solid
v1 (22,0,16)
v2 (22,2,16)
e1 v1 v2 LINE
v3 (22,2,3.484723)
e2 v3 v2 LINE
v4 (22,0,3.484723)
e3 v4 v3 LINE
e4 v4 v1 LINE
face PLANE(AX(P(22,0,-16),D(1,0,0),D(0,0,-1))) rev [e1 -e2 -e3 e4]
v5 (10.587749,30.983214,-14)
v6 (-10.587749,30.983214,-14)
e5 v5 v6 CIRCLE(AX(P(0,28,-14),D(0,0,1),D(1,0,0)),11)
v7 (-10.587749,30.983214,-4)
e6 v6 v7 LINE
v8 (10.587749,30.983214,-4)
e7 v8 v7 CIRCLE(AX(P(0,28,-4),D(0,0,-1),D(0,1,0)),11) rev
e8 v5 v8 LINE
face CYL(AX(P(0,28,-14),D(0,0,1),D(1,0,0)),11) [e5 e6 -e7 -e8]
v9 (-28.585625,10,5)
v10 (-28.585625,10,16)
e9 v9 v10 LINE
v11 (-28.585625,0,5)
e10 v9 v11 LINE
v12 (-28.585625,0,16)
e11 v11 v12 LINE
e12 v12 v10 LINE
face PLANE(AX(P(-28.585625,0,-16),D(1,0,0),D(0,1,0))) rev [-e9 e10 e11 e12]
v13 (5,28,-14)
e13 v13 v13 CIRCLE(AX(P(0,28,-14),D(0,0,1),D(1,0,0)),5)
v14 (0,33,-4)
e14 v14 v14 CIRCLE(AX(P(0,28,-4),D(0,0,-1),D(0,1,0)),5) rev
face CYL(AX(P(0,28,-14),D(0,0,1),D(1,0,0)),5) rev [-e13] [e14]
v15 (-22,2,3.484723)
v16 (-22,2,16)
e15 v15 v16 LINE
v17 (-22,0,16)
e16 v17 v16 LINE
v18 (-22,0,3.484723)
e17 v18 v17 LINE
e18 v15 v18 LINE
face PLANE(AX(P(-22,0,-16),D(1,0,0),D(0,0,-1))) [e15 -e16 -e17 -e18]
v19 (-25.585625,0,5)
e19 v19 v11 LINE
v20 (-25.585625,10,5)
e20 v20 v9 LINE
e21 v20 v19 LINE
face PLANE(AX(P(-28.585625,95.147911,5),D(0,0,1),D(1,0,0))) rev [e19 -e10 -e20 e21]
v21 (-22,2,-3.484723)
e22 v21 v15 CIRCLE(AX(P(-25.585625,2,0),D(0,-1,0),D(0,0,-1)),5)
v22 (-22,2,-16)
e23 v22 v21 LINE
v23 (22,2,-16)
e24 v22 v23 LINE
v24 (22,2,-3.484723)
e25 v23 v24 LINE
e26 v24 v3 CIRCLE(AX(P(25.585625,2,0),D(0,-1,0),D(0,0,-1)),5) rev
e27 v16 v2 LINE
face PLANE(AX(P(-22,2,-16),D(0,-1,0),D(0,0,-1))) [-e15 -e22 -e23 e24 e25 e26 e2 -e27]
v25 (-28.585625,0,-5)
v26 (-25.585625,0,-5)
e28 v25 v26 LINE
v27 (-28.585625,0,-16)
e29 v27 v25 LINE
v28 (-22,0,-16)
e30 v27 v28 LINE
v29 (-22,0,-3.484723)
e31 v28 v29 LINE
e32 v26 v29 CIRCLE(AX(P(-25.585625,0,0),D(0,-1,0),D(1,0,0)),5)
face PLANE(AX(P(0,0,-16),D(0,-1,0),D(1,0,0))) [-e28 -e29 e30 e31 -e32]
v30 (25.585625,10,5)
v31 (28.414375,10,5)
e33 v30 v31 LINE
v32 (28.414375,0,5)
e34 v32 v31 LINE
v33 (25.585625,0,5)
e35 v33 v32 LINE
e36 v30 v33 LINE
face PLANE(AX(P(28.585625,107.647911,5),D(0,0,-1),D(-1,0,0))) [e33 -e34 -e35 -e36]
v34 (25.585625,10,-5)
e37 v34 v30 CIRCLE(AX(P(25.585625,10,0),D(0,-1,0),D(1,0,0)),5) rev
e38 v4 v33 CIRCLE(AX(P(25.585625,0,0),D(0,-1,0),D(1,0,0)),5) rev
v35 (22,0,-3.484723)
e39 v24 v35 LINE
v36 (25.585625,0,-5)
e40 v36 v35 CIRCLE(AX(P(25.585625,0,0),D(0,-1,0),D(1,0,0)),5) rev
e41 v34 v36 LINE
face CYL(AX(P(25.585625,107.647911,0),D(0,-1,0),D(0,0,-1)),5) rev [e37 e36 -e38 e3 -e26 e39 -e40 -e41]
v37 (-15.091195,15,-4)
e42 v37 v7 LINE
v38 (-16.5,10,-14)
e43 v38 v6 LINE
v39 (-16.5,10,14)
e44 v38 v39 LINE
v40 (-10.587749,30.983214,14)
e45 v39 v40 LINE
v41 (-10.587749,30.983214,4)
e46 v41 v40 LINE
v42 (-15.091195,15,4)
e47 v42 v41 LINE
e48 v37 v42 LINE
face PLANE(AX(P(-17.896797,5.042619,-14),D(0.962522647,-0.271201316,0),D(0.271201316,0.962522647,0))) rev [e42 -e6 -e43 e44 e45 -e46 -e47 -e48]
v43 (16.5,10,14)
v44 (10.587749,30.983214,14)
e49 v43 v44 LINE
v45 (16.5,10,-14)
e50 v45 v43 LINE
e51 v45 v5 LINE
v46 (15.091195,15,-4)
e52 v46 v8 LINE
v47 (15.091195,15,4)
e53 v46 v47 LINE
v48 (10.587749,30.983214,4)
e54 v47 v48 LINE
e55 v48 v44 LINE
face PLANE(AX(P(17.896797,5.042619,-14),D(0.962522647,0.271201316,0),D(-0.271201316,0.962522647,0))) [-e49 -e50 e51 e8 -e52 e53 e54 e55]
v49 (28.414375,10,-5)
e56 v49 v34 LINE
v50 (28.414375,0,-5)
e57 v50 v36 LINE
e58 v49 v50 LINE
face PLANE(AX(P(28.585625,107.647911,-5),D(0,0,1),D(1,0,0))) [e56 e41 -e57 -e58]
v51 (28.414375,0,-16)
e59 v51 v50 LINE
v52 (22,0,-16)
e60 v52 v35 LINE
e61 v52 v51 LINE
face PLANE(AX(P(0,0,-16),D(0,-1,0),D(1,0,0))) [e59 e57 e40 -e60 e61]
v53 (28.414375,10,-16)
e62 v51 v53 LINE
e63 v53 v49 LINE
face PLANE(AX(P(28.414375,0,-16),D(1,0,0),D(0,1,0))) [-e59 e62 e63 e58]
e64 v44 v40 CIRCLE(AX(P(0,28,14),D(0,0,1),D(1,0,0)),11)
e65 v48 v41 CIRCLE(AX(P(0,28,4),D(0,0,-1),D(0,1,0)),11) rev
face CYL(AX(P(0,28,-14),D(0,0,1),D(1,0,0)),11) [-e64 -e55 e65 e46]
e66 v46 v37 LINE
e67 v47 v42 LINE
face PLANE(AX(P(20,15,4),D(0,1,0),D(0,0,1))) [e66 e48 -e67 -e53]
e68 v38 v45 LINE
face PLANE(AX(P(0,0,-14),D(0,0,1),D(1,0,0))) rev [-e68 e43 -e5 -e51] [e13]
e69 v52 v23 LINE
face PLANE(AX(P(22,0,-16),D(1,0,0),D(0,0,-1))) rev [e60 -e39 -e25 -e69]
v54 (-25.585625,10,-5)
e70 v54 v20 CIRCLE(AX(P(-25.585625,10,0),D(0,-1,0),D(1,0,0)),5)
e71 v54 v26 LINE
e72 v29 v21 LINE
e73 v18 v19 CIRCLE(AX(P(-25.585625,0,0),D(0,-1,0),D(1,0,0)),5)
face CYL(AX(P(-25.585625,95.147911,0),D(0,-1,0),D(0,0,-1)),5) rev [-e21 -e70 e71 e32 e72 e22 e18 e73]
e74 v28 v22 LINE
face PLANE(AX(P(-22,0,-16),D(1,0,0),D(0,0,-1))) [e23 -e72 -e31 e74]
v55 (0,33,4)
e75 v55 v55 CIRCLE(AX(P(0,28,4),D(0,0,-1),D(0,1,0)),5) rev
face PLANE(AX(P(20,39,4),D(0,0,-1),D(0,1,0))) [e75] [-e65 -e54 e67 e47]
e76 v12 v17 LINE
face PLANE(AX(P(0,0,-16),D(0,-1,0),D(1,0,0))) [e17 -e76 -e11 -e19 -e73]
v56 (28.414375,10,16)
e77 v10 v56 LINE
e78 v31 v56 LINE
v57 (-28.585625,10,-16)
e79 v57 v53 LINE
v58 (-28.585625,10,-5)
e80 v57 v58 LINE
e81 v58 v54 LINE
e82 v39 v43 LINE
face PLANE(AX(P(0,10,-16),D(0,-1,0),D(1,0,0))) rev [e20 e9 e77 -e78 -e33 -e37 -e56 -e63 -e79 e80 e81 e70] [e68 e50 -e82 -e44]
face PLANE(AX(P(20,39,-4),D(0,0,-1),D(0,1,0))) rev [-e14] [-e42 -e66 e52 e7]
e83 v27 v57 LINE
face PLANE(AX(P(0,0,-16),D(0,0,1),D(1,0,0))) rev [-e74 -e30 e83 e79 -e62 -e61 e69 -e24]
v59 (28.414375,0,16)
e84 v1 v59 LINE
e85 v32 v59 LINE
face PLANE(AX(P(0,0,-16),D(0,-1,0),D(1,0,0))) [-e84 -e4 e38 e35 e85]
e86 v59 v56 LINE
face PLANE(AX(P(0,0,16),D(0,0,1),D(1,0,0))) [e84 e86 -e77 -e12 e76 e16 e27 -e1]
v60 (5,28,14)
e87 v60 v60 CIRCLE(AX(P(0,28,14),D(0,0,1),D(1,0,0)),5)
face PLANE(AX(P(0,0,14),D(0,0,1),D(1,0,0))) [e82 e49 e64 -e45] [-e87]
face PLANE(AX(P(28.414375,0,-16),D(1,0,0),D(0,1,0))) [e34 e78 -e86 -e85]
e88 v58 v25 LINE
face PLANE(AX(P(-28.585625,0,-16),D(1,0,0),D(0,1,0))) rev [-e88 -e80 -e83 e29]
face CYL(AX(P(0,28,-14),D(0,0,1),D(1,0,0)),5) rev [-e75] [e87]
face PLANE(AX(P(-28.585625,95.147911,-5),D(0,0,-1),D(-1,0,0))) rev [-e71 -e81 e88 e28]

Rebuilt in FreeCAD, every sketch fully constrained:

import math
import FreeCAD as App
import Part
import Sketcher

V = App.Vector


def add_polygon(sketch, points):
    """Adds a closed chain of lines whose ends are joined by coincident constraints."""
    first, n = sketch.GeometryCount, len(points)
    for a, b in zip(points, points[1:] + points[:1]):
        sketch.addGeometry(Part.LineSegment(App.Vector(*a, 0), App.Vector(*b, 0)), False)
    for i in range(n):
        sketch.addConstraint(Sketcher.Constraint("Coincident", first + i, 2, first + (i + 1) % n, 1))

doc = App.newDocument("Part")
body = doc.addObject("PartDesign::Body", "Body")

# Sketch on XY plane
sketch1 = doc.addObject("Sketcher::SketchObject", "Sketch")
body.addObject(sketch1)
sketch1.AttachmentSupport = (doc.XY_Plane, [""])
sketch1.MapMode = "FlatFace"
sketch1.AttachmentOffset = App.Placement(V(0, 0, 16), App.Rotation())
add_polygon(sketch1, [(-29, 10), (-29, 0), (28, 0), (28, 10)])  # lines 0-3
sketch1.addConstraint([
    Sketcher.Constraint("Vertical", 0),
    Sketcher.Constraint("Horizontal", 1),
    Sketcher.Constraint("Vertical", 2),
    Sketcher.Constraint("Horizontal", 3),
    Sketcher.Constraint("PointOnObject", 0, 2, -1),
    Sketcher.Constraint("DistanceX", 1, 1, 1, 2, 57.0),
    Sketcher.Constraint("DistanceY", 0, 2, 0, 1, 10.0),
    Sketcher.Constraint("DistanceX", 0, 2, -1, 1, 28.585625),
])
pad1 = doc.addObject("PartDesign::Pad", "Pad")
body.addObject(pad1)
pad1.Profile = sketch1
pad1.Length = 32
pad1.Reversed = True

# Sketch on XY plane
sketch2 = doc.addObject("Sketcher::SketchObject", "Sketch001")
body.addObject(sketch2)
sketch2.AttachmentSupport = (doc.XY_Plane, [""])
sketch2.MapMode = "FlatFace"
sketch2.AttachmentOffset = App.Placement(V(0, 0, 14), App.Rotation())
sketch2.addGeometry([
    Part.LineSegment(V(-11, 31, 0), V(-16, 10, 0)),  # 0
    Part.LineSegment(V(-16, 10, 0), V(-29, 10, 0)),  # 1
    Part.LineSegment(V(-29, 10, 0), V(-29, 0, 0)),  # 2
    Part.LineSegment(V(-29, 0, 0), V(28, 0, 0)),  # 3
    Part.LineSegment(V(28, 0, 0), V(28, 10, 0)),  # 4
    Part.LineSegment(V(28, 10, 0), V(16, 10, 0)),  # 5
    Part.LineSegment(V(16, 10, 0), V(11, 31, 0)),  # 6
    Part.ArcOfCircle(Part.Circle(V(0, 28, 0), V(0, 0, 1), 11), math.radians(16), math.radians(164)),  # 7
    Part.Circle(V(0, 28, 0), V(0, 0, 1), 5),  # 8
], False)
sketch2.addConstraint([
    Sketcher.Constraint("Coincident", 0, 2, 1, 1),
    Sketcher.Constraint("Coincident", 1, 2, 2, 1),
    Sketcher.Constraint("Coincident", 2, 2, 3, 1),
    Sketcher.Constraint("Coincident", 3, 2, 4, 1),
    Sketcher.Constraint("Coincident", 4, 2, 5, 1),
    Sketcher.Constraint("Coincident", 5, 2, 6, 1),
    Sketcher.Constraint("Tangent", 6, 2, 7, 1),
    Sketcher.Constraint("Tangent", 7, 2, 0, 1),
    Sketcher.Constraint("Horizontal", 1),
    Sketcher.Constraint("Vertical", 2),
    Sketcher.Constraint("Horizontal", 3),
    Sketcher.Constraint("Vertical", 4),
    Sketcher.Constraint("Horizontal", 5),
    Sketcher.Constraint("Coincident", 8, 3, 7, 3),
    Sketcher.Constraint("Symmetric", 0, 2, 5, 2, -2),
    Sketcher.Constraint("PointOnObject", 7, 3, -2),
    Sketcher.Constraint("PointOnObject", 2, 2, -1),
    Sketcher.Constraint("Diameter", 8, 10.0),
    Sketcher.Constraint("Radius", 7, 11.0),
    Sketcher.Constraint("DistanceX", 3, 1, 3, 2, 57.0),
    Sketcher.Constraint("DistanceY", 2, 2, 2, 1, 10.0),
    Sketcher.Constraint("DistanceY", -1, 1, 7, 3, 28.0),
    Sketcher.Constraint("DistanceX", 0, 2, 5, 2, 33.0),
    Sketcher.Constraint("DistanceX", 1, 2, 1, 1, 12.085625),
])
pad2 = doc.addObject("PartDesign::Pad", "Pad001")
body.addObject(pad2)
pad2.Profile = sketch2
pad2.Length = 28
pad2.Reversed = True

# Sketch on XY plane
sketch3 = doc.addObject("Sketcher::SketchObject", "Sketch002")
body.addObject(sketch3)
sketch3.AttachmentSupport = (doc.XY_Plane, [""])
sketch3.MapMode = "FlatFace"
sketch3.AttachmentOffset = App.Placement(V(0, 0, 14), App.Rotation())
sketch3.addGeometry([
    Part.LineSegment(V(-11, 31, 0), V(-16, 10, 0)),  # 0
    Part.LineSegment(V(-16, 10, 0), V(-29, 10, 0)),  # 1
    Part.LineSegment(V(-29, 10, 0), V(-29, 0, 0)),  # 2
    Part.LineSegment(V(-29, 0, 0), V(28, 0, 0)),  # 3
    Part.LineSegment(V(28, 0, 0), V(28, 10, 0)),  # 4
    Part.LineSegment(V(28, 10, 0), V(16, 10, 0)),  # 5
    Part.LineSegment(V(16, 10, 0), V(11, 31, 0)),  # 6
    Part.ArcOfCircle(Part.Circle(V(0, 28, 0), V(0, 0, 1), 11), math.radians(16), math.radians(164)),  # 7
    Part.Circle(V(0, 28, 0), V(0, 0, 1), 5),  # 8
], False)
sketch3.addConstraint([
    Sketcher.Constraint("Coincident", 0, 2, 1, 1),
    Sketcher.Constraint("Coincident", 1, 2, 2, 1),
    Sketcher.Constraint("Coincident", 2, 2, 3, 1),
    Sketcher.Constraint("Coincident", 3, 2, 4, 1),
    Sketcher.Constraint("Coincident", 4, 2, 5, 1),
    Sketcher.Constraint("Coincident", 5, 2, 6, 1),
    Sketcher.Constraint("Tangent", 6, 2, 7, 1),
    Sketcher.Constraint("Tangent", 7, 2, 0, 1),
    Sketcher.Constraint("Horizontal", 1),
    Sketcher.Constraint("Vertical", 2),
    Sketcher.Constraint("Horizontal", 3),
    Sketcher.Constraint("Vertical", 4),
    Sketcher.Constraint("Horizontal", 5),
    Sketcher.Constraint("Coincident", 8, 3, 7, 3),
    Sketcher.Constraint("Symmetric", 0, 2, 5, 2, -2),
    Sketcher.Constraint("PointOnObject", 7, 3, -2),
    Sketcher.Constraint("PointOnObject", 2, 2, -1),
    Sketcher.Constraint("Diameter", 8, 10.0),
    Sketcher.Constraint("Radius", 7, 11.0),
    Sketcher.Constraint("DistanceX", 3, 1, 3, 2, 57.0),
    Sketcher.Constraint("DistanceY", 2, 2, 2, 1, 10.0),
    Sketcher.Constraint("DistanceY", -1, 1, 7, 3, 28.0),
    Sketcher.Constraint("DistanceX", 0, 2, 5, 2, 33.0),
    Sketcher.Constraint("DistanceX", 1, 2, 1, 1, 12.085625),
])
pad3 = doc.addObject("PartDesign::Pad", "Pad002")
body.addObject(pad3)
pad3.Profile = sketch3
pad3.Length = 28
pad3.Reversed = True

# Sketch on XY plane
sketch4 = doc.addObject("Sketcher::SketchObject", "Sketch003")
body.addObject(sketch4)
sketch4.AttachmentSupport = (doc.XY_Plane, [""])
sketch4.MapMode = "FlatFace"
sketch4.AttachmentOffset = App.Placement(V(0, 0, 16), App.Rotation())
add_polygon(sketch4, [(-22, 2), (-22, 0), (22, 0), (22, 2)])  # lines 0-3
sketch4.addConstraint([
    Sketcher.Constraint("Vertical", 0),
    Sketcher.Constraint("Horizontal", 1),
    Sketcher.Constraint("Vertical", 2),
    Sketcher.Constraint("Horizontal", 3),
    Sketcher.Constraint("Symmetric", 0, 2, 1, 2, -1, 1),
    Sketcher.Constraint("DistanceX", 1, 1, 1, 2, 44.0),
    Sketcher.Constraint("DistanceY", 0, 2, 0, 1, 2.0),
])
pocket1 = doc.addObject("PartDesign::Pocket", "Pocket")
body.addObject(pocket1)
pocket1.Profile = sketch4
pocket1.Type = "ThroughAll"

# Sketch on XZ plane
sketch5 = doc.addObject("Sketcher::SketchObject", "Sketch004")
body.addObject(sketch5)
sketch5.AttachmentSupport = (doc.XZ_Plane, [""])
sketch5.MapMode = "FlatFace"
sketch5.addGeometry([
    Part.ArcOfCircle(Part.Circle(V(-26, 0, 0), V(0, 0, 1), 5), math.radians(-90), math.radians(90)),
    Part.LineSegment(V(-26, -5, 0), V(-423, -5, 0)),
    Part.LineSegment(V(-423, -5, 0), V(-423, 5, 0)),
    Part.LineSegment(V(-423, 5, 0), V(-26, 5, 0)),
], False)
sketch5.addConstraint([
    Sketcher.Constraint("Tangent", 0, 1, 1, 1),
    Sketcher.Constraint("Coincident", 1, 2, 2, 1),
    Sketcher.Constraint("Coincident", 2, 2, 3, 1),
    Sketcher.Constraint("Tangent", 3, 2, 0, 2),
    Sketcher.Constraint("Horizontal", 1),
    Sketcher.Constraint("Vertical", 2),
    Sketcher.Constraint("Horizontal", 3),
    Sketcher.Constraint("PointOnObject", 0, 3, -1),
    Sketcher.Constraint("Radius", 0, 5.0),
    Sketcher.Constraint("DistanceX", 1, 2, 1, 1, 397.472221),
    Sketcher.Constraint("DistanceX", 0, 3, -1, 1, 25.585625),
])
pocket2 = doc.addObject("PartDesign::Pocket", "Pocket001")
body.addObject(pocket2)
pocket2.Profile = sketch5
pocket2.Length = 103.865361
pocket2.Midplane = True
doc.recompute()

mirrored = doc.addObject("PartDesign::Mirrored", "Mirrored")
body.addObject(mirrored)
mirrored.Originals = [pocket2]
mirrored.MirrorPlane = (doc.YZ_Plane, [""])
body.Tip = mirrored

# Sketch on YZ plane
sketch6 = doc.addObject("Sketcher::SketchObject", "Sketch005")
body.addObject(sketch6)
sketch6.AttachmentSupport = (doc.YZ_Plane, [""])
sketch6.MapMode = "FlatFace"
add_polygon(sketch6, [(39, 4), (15, 4), (15, -4), (39, -4)])  # lines 0-3
sketch6.addConstraint([
    Sketcher.Constraint("Horizontal", 0),
    Sketcher.Constraint("Vertical", 1),
    Sketcher.Constraint("Horizontal", 2),
    Sketcher.Constraint("Vertical", 3),
    Sketcher.Constraint("DistanceX", 0, 2, 0, 1, 24.0),
    Sketcher.Constraint("DistanceY", 1, 2, 1, 1, 8.0),
    Sketcher.Constraint("DistanceX", -1, 1, 0, 2, 15.0),
    Sketcher.Constraint("DistanceY", -1, 1, 0, 2, 4.0),
])
pocket3 = doc.addObject("PartDesign::Pocket", "Pocket002")
body.addObject(pocket3)
pocket3.Profile = sketch6
pocket3.Length = 40
pocket3.Midplane = True

doc.recompute()
